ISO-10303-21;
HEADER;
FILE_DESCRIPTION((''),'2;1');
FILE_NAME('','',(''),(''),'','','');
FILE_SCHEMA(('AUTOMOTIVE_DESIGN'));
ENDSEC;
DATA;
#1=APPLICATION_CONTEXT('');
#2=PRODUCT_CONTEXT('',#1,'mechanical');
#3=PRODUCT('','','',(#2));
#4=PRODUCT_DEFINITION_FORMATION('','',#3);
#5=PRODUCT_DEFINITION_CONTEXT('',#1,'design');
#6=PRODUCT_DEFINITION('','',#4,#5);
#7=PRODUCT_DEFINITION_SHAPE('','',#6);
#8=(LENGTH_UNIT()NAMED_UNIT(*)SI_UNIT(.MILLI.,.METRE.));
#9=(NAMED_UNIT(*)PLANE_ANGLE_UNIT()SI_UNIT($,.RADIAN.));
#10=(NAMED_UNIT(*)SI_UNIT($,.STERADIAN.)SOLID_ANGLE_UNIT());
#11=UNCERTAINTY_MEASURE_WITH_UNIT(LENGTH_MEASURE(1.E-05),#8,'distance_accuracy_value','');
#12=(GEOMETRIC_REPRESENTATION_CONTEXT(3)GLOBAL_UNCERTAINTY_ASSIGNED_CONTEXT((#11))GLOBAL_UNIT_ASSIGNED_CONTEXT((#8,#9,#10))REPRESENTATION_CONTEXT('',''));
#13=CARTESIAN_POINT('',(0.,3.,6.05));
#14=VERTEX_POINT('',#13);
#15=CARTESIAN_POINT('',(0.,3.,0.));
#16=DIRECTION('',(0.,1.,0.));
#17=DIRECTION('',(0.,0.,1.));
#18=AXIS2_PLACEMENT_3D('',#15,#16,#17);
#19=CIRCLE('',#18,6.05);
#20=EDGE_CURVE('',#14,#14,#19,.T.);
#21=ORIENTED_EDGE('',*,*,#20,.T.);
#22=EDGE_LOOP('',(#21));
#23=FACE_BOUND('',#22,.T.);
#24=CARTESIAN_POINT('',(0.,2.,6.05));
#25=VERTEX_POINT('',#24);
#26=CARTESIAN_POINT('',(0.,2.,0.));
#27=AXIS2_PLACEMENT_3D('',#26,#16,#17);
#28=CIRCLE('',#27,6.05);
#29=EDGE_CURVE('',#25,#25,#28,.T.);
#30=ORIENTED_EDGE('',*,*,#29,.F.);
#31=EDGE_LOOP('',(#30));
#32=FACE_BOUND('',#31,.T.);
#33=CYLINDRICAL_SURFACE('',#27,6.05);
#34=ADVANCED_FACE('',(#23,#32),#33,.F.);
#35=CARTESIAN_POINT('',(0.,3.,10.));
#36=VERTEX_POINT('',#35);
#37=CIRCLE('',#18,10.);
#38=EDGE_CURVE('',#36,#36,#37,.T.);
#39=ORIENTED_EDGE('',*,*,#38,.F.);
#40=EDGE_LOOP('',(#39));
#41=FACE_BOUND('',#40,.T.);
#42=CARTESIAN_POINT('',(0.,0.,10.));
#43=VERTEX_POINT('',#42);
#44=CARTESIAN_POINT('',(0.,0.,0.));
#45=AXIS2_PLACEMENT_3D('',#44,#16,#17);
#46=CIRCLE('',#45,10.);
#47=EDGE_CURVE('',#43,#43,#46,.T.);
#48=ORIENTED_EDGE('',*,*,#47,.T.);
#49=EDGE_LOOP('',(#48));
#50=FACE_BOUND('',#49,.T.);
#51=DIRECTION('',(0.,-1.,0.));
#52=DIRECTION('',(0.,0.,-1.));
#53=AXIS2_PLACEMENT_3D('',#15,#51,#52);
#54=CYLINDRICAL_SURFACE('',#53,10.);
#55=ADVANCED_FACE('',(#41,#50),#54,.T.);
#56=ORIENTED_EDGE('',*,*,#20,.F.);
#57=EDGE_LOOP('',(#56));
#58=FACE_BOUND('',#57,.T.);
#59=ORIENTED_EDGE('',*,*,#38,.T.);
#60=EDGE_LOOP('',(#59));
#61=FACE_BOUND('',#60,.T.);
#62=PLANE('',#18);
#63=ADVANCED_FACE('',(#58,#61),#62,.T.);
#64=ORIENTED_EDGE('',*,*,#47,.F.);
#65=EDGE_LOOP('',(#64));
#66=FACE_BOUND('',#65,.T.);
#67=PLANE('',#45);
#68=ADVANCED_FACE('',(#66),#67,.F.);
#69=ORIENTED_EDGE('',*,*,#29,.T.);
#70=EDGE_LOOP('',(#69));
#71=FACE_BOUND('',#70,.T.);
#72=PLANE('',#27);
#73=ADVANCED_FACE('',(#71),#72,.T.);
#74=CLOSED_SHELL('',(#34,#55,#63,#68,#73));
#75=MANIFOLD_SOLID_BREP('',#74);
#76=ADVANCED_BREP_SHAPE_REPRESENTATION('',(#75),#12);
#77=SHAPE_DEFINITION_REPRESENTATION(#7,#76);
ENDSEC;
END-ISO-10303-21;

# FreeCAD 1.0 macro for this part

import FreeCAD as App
import Part
import Sketcher
Q = App.Units.Quantity

doc = App.newDocument("Part")
body = doc.addObject("PartDesign::Body", "Body")

# Sketch on XZ plane
sketch1 = body.newObject("Sketcher::SketchObject", "Sketch")
sketch1.AttachmentSupport = (doc.getObject("XZ_Plane"), [""])
sketch1.MapMode = "FlatFace"
sketch1.addGeometry(Part.Circle(App.Vector(0, 0, 0), App.Vector(0, 0, 1), 10), False)
sketch1.addConstraint([
    Sketcher.Constraint("Coincident", 0, 3, -1, 1),
    Sketcher.Constraint("Diameter", 0, Q("20 mm")),
])
pad1 = body.newObject("PartDesign::Pad", "Pad")
pad1.Profile = sketch1
pad1.Length = 3
pad1.Reversed = True

# Sketch on XZ plane
sketch2 = body.newObject("Sketcher::SketchObject", "Sketch001")
sketch2.AttachmentSupport = (doc.getObject("XZ_Plane"), [""])
sketch2.MapMode = "FlatFace"
sketch2.AttachmentOffset = App.Placement(App.Vector(0, 0, -3), App.Rotation())
sketch2.addGeometry(Part.Circle(App.Vector(0, 0, 0), App.Vector(0, 0, 1), 6), False)
sketch2.addConstraint([
    Sketcher.Constraint("Coincident", 0, 3, -1, 1),
    Sketcher.Constraint("Diameter", 0, Q("12.1 mm")),
])
pocket1 = body.newObject("PartDesign::Pocket", "Pocket")
pocket1.Profile = sketch2
pocket1.Length = 1
pocket1.Reversed = True

doc.recompute()
